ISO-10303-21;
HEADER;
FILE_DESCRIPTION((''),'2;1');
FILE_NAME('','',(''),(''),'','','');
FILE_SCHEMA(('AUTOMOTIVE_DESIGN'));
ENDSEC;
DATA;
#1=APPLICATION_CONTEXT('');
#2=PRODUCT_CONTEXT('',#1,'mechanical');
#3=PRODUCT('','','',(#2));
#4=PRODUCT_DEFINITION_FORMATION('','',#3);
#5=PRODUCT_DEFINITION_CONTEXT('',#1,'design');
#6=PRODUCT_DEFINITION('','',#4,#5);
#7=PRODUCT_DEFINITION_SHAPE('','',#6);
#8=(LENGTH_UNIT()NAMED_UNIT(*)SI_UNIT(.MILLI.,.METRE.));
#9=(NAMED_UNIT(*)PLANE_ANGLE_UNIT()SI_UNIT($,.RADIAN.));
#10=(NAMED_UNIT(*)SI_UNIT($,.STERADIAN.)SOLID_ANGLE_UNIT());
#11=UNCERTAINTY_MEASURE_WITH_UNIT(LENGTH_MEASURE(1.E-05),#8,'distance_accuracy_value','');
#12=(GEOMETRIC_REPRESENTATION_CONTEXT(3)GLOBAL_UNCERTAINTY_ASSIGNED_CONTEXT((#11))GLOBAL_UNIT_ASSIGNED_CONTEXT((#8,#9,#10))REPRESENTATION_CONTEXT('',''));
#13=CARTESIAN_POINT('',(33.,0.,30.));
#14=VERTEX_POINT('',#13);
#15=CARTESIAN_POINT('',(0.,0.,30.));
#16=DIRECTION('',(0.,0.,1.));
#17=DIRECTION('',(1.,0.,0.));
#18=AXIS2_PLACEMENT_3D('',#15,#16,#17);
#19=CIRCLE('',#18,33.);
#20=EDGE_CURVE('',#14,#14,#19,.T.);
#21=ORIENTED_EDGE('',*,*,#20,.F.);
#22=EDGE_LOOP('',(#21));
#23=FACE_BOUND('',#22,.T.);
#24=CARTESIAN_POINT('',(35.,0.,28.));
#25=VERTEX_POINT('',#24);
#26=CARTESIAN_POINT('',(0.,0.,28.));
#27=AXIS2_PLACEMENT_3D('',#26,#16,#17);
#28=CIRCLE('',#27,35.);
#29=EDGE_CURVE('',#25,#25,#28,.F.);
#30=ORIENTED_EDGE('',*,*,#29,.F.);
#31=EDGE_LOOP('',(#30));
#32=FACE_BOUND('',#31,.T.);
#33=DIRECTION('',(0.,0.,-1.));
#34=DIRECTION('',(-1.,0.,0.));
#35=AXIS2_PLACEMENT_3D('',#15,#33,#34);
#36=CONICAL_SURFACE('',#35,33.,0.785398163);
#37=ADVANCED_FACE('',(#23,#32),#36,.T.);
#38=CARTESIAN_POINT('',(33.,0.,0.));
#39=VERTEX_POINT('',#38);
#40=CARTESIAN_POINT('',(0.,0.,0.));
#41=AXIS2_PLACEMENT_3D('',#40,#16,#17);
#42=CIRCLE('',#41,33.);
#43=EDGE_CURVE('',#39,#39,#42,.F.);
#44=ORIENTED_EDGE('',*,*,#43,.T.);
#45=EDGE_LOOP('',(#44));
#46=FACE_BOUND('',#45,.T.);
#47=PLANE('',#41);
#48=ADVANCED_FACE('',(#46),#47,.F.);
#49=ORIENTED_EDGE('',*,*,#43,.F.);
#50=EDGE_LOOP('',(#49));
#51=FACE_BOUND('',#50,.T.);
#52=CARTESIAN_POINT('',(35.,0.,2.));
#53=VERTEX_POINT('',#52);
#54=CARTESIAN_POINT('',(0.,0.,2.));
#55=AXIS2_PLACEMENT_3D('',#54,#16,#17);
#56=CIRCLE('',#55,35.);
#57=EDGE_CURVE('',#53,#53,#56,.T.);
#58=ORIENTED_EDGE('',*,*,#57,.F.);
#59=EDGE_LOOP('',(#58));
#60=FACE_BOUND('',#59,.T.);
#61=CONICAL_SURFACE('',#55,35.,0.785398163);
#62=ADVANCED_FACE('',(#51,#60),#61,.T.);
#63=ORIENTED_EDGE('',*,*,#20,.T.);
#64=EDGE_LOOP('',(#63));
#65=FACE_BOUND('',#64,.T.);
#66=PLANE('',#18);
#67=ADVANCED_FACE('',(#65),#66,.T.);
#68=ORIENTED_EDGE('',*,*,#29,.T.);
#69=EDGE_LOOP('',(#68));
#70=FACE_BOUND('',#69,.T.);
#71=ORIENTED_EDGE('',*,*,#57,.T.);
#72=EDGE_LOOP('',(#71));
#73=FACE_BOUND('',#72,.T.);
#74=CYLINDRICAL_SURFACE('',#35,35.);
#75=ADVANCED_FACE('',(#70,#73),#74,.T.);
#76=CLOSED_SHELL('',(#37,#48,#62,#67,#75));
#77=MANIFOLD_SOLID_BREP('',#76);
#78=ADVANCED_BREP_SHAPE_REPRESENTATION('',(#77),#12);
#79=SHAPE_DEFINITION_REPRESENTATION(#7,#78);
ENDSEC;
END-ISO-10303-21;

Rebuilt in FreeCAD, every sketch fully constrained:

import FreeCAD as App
import Part
import Sketcher

V = App.Vector
Q = App.Units.Quantity


def edges_at(feature, points):
    """Names of the edges that pass closest to the given points."""
    edges = feature.Shape.Edges
    near = lambda p: min(range(len(edges)), key=lambda i: edges[i].distToShape(Part.Vertex(*p))[0])
    return sorted({f"Edge{near(p) + 1}" for p in points})

doc = App.newDocument("Part")
body = doc.addObject("PartDesign::Body", "Body")

# Sketch on XY plane
sketch1 = body.newObject("Sketcher::SketchObject", "Sketch")
sketch1.AttachmentSupport = (doc.getObject("XY_Plane"), [""])
sketch1.MapMode = "FlatFace"
sketch1.addGeometry(Part.Circle(V(0, 0, 0), V(0, 0, 1), 35), False)
sketch1.addConstraint([
    Sketcher.Constraint("Coincident", 0, 3, -1, 1),
    Sketcher.Constraint("Diameter", 0, Q("70 mm")),
])
pad1 = body.newObject("PartDesign::Pad", "Pad")
pad1.Profile = sketch1
pad1.Length = 30
doc.recompute()

chamfer = body.newObject("PartDesign::Chamfer", "Chamfer")
chamfer.Base = (pad1, edges_at(pad1, [(-35, 0, 30)]))
chamfer.Size = 2
doc.recompute()

chamfer2 = body.newObject("PartDesign::Chamfer", "Chamfer001")
chamfer2.Base = (chamfer, edges_at(chamfer, [(-35, 0, 0)]))
chamfer2.Size = 2

doc.recompute()
